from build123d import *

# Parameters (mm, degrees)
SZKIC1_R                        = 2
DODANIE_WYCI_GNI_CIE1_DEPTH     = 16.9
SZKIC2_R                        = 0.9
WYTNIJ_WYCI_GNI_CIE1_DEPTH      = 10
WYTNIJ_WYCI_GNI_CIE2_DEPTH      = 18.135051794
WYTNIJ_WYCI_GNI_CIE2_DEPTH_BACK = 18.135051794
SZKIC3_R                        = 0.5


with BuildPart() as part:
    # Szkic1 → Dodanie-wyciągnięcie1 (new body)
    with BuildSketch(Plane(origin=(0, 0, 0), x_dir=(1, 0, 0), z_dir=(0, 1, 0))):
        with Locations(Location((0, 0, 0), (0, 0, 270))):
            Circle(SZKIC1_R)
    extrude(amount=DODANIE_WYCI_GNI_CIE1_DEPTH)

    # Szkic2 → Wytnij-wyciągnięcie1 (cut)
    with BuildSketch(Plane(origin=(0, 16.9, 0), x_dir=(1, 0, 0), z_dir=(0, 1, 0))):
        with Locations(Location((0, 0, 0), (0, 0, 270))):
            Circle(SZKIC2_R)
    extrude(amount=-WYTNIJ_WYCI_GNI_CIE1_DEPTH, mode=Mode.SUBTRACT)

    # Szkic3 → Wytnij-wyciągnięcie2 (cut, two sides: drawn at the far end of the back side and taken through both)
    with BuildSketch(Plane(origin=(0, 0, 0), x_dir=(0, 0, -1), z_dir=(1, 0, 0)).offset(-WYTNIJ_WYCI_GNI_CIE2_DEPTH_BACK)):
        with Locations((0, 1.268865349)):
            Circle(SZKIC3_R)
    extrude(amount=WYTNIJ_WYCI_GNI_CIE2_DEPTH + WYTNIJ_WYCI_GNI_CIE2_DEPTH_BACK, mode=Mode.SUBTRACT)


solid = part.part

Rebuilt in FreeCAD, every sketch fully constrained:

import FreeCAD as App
import Part
import Sketcher
from FreeCAD import Vector
Q = App.Units.Quantity

doc = App.newDocument("Part")
params = doc.addObject("Spreadsheet::Sheet", "Params")
for row, (alias, value) in enumerate([
    ("sketch1_diameter", "4 mm"),
    ("pad1_length", "16.9 mm"),
    ("sketch2_diameter", "1.8 mm"),
    ("pocket1_length", "10 mm"),
    ("sketch3_diameter", "1 mm"),
], start=1):
    params.set(f"A{row}", alias)
    params.set(f"B{row}", "=" + value)
    params.setAlias(f"B{row}", alias)

body = doc.addObject("PartDesign::Body", "Body")

# Sketch on XZ plane
sketch1 = body.newObject("Sketcher::SketchObject", "Sketch")
sketch1.AttachmentSupport = (doc.getObject("XZ_Plane"), [""])
sketch1.MapMode = "FlatFace"
sketch1.addGeometry(Part.Circle(Vector(0, 0, 0), Vector(0, 0, 1), 2), False)
sketch1.addConstraint(Sketcher.Constraint("Coincident", 0, 3, -1, 1))
sketch1.addConstraint(Sketcher.Constraint("Diameter", 0, Q("4 mm")))
sketch1.setExpression("Constraints[1]", "Params.sketch1_diameter")
pad1 = body.newObject("PartDesign::Pad", "Pad")
pad1.Profile = sketch1
pad1.setExpression("Length", "Params.pad1_length")
pad1.Reversed = True

# Sketch on XZ plane
sketch2 = body.newObject("Sketcher::SketchObject", "Sketch001")
sketch2.AttachmentSupport = (doc.getObject("XZ_Plane"), [""])
sketch2.MapMode = "FlatFace"
sketch2.AttachmentOffset = App.Placement(Vector(0, 0, -16.9), App.Rotation())
sketch2.addGeometry(Part.Circle(Vector(0, 0, 0), Vector(0, 0, 1), 0.9), False)
sketch2.addConstraint(Sketcher.Constraint("Coincident", 0, 3, -1, 1))
sketch2.addConstraint(Sketcher.Constraint("Diameter", 0, Q("1.8 mm")))
sketch2.setExpression("Constraints[1]", "Params.sketch2_diameter")
pocket1 = body.newObject("PartDesign::Pocket", "Pocket")
pocket1.Profile = sketch2
pocket1.setExpression("Length", "Params.pocket1_length")
pocket1.Reversed = True

# Sketch on YZ plane
sketch3 = body.newObject("Sketcher::SketchObject", "Sketch002")
sketch3.AttachmentSupport = (doc.getObject("YZ_Plane"), [""])
sketch3.MapMode = "FlatFace"
sketch3.addGeometry(Part.Circle(Vector(1.3, 0, 0), Vector(0, 0, 1), 0.5), False)
sketch3.addConstraint(Sketcher.Constraint("PointOnObject", 0, 3, -1))
sketch3.addConstraint(Sketcher.Constraint("Diameter", 0, Q("1 mm")))
sketch3.addConstraint(Sketcher.Constraint("DistanceX", -1, 1, 0, 3, Q("1.268865 mm")))
sketch3.setExpression("Constraints[1]", "Params.sketch3_diameter")
pocket2 = body.newObject("PartDesign::Pocket", "Pocket001")
pocket2.Profile = sketch3
pocket2.Type = "ThroughAll"
pocket2.Midplane = True

doc.recompute()
